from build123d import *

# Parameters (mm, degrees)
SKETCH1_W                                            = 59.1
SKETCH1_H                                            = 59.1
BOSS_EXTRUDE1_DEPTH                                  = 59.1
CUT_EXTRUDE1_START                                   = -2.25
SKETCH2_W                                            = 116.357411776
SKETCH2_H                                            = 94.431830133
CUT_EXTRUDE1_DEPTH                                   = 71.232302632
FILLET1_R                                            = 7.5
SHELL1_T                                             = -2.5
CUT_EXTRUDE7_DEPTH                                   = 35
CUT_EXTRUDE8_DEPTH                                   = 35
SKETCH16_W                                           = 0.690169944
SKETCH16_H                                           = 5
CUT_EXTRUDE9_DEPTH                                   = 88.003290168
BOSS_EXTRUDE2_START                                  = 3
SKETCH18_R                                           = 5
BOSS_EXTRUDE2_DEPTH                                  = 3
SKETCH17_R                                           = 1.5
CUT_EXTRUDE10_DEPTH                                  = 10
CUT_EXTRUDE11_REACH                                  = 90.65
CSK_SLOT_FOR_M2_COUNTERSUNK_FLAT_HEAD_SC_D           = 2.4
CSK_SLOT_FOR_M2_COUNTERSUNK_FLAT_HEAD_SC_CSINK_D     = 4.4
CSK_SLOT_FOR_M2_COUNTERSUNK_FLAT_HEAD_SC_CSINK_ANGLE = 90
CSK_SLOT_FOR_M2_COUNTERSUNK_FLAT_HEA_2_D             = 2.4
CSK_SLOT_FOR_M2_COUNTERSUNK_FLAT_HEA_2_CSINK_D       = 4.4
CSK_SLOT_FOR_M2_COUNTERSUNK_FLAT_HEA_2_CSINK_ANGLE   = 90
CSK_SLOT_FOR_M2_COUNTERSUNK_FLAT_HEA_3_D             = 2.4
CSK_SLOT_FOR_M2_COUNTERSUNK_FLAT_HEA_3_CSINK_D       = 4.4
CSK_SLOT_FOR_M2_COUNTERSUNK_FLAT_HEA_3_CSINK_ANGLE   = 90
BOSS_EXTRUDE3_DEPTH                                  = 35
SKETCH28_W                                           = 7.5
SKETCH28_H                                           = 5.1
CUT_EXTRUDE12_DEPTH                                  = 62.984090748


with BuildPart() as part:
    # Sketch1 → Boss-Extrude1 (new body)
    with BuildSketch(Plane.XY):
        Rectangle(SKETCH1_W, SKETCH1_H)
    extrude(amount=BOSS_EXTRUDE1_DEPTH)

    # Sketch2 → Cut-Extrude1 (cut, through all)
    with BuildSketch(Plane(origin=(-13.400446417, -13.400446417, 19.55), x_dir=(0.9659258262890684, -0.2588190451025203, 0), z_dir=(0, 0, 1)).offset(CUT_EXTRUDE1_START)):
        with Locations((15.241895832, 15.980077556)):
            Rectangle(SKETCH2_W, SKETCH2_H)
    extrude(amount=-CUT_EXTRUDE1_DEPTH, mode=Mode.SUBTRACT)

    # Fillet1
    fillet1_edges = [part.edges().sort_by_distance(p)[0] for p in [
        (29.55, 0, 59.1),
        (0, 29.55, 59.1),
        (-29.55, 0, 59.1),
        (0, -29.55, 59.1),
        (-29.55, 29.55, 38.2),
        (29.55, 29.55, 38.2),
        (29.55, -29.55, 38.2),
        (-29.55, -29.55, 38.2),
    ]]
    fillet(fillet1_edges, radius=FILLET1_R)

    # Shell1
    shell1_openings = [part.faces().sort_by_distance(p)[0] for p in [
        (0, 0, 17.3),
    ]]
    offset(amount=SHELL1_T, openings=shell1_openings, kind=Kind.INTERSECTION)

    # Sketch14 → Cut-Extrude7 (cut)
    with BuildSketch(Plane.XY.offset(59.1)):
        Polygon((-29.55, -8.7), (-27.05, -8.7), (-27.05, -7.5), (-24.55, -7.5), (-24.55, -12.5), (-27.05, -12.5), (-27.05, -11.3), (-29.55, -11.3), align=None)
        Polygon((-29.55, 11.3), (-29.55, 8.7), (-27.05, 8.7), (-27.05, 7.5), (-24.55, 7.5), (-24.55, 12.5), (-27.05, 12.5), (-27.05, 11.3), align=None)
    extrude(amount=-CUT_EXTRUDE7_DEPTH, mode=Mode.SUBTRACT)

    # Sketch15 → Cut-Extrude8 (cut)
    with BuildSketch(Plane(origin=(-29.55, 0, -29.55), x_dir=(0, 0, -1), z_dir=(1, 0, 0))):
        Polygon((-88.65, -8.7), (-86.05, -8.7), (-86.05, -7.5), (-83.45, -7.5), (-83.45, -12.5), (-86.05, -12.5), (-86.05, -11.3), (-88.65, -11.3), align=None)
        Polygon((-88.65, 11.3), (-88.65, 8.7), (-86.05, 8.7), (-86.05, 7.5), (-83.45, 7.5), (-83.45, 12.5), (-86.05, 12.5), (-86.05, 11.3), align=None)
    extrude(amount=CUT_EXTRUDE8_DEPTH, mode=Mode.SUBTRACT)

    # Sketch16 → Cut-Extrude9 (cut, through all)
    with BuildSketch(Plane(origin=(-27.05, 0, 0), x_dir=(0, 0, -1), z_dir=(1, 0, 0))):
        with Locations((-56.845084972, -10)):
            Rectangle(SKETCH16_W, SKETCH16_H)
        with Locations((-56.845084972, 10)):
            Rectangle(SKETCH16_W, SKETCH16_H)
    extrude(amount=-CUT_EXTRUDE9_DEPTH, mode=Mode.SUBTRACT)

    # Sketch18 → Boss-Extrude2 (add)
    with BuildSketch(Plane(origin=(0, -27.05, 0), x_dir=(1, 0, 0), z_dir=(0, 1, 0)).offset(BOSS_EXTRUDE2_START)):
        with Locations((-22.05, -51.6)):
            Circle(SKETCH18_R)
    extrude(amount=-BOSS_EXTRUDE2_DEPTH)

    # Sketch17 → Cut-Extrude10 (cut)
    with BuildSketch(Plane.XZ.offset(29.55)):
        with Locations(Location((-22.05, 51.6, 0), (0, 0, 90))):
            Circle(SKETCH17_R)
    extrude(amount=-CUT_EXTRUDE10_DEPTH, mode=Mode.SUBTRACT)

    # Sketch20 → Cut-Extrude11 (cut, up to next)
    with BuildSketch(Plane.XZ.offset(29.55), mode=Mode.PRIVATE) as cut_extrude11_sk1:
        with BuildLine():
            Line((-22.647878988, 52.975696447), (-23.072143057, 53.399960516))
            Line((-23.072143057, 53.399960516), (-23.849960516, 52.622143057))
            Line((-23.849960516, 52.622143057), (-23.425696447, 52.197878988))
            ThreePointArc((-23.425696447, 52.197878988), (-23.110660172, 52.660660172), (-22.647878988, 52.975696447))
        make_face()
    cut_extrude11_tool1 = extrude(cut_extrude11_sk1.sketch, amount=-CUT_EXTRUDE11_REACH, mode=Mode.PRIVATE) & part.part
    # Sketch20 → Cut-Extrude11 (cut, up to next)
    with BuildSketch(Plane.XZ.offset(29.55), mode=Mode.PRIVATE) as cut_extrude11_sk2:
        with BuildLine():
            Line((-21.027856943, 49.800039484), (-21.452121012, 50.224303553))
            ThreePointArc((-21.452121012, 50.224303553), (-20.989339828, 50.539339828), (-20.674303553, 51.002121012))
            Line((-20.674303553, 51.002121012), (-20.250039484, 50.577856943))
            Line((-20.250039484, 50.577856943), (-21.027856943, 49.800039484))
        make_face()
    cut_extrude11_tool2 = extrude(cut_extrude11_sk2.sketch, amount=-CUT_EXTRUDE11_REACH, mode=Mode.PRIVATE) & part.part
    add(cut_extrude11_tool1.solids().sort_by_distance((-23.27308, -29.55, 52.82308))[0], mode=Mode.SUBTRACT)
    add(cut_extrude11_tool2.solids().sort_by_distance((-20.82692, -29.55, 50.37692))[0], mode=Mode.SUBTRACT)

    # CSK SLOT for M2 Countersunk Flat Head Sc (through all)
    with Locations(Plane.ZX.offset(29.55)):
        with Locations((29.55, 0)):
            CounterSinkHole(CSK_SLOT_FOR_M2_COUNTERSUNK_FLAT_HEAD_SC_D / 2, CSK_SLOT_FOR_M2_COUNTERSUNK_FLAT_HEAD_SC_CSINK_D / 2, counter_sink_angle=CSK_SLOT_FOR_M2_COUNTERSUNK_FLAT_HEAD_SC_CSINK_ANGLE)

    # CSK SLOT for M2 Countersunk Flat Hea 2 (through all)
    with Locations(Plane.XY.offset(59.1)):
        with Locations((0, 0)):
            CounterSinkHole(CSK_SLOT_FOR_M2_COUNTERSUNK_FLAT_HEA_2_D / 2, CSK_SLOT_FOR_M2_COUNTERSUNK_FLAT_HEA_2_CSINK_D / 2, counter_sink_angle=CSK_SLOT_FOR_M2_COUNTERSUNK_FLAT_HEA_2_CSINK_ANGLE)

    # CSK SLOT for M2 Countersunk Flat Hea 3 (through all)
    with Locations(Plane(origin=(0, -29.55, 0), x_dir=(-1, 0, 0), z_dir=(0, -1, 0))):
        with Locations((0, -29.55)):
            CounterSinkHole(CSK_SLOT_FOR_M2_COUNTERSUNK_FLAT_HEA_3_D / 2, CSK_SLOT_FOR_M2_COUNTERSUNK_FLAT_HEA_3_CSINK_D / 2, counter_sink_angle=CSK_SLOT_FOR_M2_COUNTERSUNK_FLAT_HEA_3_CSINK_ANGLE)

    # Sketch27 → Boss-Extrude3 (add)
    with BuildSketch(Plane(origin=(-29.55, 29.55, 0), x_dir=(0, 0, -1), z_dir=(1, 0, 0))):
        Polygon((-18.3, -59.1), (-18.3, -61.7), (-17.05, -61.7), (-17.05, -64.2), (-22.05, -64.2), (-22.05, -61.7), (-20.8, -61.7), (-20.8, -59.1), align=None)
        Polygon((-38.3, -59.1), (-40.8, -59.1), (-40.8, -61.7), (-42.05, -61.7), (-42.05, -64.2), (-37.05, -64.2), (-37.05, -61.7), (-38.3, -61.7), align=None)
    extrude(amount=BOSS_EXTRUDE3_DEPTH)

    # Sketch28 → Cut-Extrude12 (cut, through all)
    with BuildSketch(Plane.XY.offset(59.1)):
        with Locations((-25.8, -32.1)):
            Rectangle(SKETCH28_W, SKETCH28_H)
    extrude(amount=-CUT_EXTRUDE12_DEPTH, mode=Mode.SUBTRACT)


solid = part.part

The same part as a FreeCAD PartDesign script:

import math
import FreeCAD as App
import Part
import Sketcher
from FreeCAD import Vector
Q = App.Units.Quantity


def edges_at(feature, points):
    """Names of the edges that pass closest to the given points."""
    edges = feature.Shape.Edges
    near = lambda p: min(range(len(edges)), key=lambda i: edges[i].distToShape(Part.Vertex(*p))[0])
    return sorted({f"Edge{near(p) + 1}" for p in points})


def faces_at(feature, points):
    """Names of the faces that lie closest to the given points."""
    faces = feature.Shape.Faces
    near = lambda p: min(range(len(faces)), key=lambda i: faces[i].distToShape(Part.Vertex(*p))[0])
    return sorted({f"Face{near(p) + 1}" for p in points})

doc = App.newDocument("Part")
body = doc.addObject("PartDesign::Body", "Body")

sketch1 = body.newObject("Sketcher::SketchObject", "Sketch")
sketch1.AttachmentSupport = (doc.getObject("XY_Plane"), [""])
sketch1.MapMode = "FlatFace"
sketch1.addGeometry([
    Part.LineSegment(Vector(-30, 30, 0), Vector(-30, -30, 0)),
    Part.LineSegment(Vector(-30, -30, 0), Vector(30, -30, 0)),
    Part.LineSegment(Vector(30, -30, 0), Vector(30, 30, 0)),
    Part.LineSegment(Vector(30, 30, 0), Vector(-30, 30, 0)),
], False)
sketch1.addConstraint([
    Sketcher.Constraint("Coincident", 0, 2, 1, 1),
    Sketcher.Constraint("Coincident", 1, 2, 2, 1),
    Sketcher.Constraint("Coincident", 2, 2, 3, 1),
    Sketcher.Constraint("Coincident", 3, 2, 0, 1),
    Sketcher.Constraint("Vertical", 0),
    Sketcher.Constraint("Horizontal", 1),
    Sketcher.Constraint("Vertical", 2),
    Sketcher.Constraint("Horizontal", 3),
    Sketcher.Constraint("Symmetric", 0, 2, 2, 2, -1, 1),
    Sketcher.Constraint("Equal", 3, 0),
    Sketcher.Constraint("DistanceX", 1, 1, 1, 2, 59.1),
])
pad1 = body.newObject("PartDesign::Pad", "Pad")
pad1.Profile = sketch1
pad1.Length = 59.1

sketch2 = body.newObject("Sketcher::SketchObject", "Sketch001")
sketch2.AttachmentSupport = (doc.getObject("XY_Plane"), [""])
sketch2.MapMode = "FlatFace"
sketch2.AttachmentOffset = App.Placement(Vector(0, 0, 17.3), App.Rotation())
sketch2.addGeometry([
    Part.LineSegment(Vector(-39, 59, 0), Vector(-63, -32, 0)),
    Part.LineSegment(Vector(-63, -32, 0), Vector(49, -63, 0)),
    Part.LineSegment(Vector(49, -63, 0), Vector(74, 29, 0)),
    Part.LineSegment(Vector(74, 29, 0), Vector(-39, 59, 0)),
], False)
sketch2.addConstraint([
    Sketcher.Constraint("Coincident", 0, 2, 1, 1),
    Sketcher.Constraint("Coincident", 1, 2, 2, 1),
    Sketcher.Constraint("Coincident", 2, 2, 3, 1),
    Sketcher.Constraint("Coincident", 3, 2, 0, 1),
    Sketcher.Constraint("Perpendicular", 0, 1),
    Sketcher.Constraint("Perpendicular", 1, 2),
    Sketcher.Constraint("Perpendicular", 2, 3),
    Sketcher.Constraint("Angle", 0, Q("-105 deg")),
    Sketcher.Constraint("DistanceY", 1, 2, -1, 1, 62.574599),
    Sketcher.Constraint("Distance", 0, 94.43183),
    Sketcher.Constraint("Distance", 1, 116.357412),
    Sketcher.Constraint("DistanceX", 0, 2, -1, 1, 62.95865),
])
pocket1 = body.newObject("PartDesign::Pocket", "Pocket")
pocket1.Profile = sketch2
pocket1.Type = "ThroughAll"
doc.recompute()

fillet = body.newObject("PartDesign::Fillet", "Fillet")
fillet.Base = (pocket1, edges_at(pocket1, [
    (29.55, 0, 59.1),
    (0, 29.55, 59.1),
    (-29.55, 0, 59.1),
    (0, -29.55, 59.1),
    (-29.55, 29.55, 38.2),
    (29.55, 29.55, 38.2),
    (29.55, -29.55, 38.2),
    (-29.55, -29.55, 38.2),
]))
fillet.Radius = 7.5
doc.recompute()

thickness = body.newObject("PartDesign::Thickness", "Thickness")
thickness.Base = (fillet, faces_at(fillet, [(0, 0, 17.3)]))
thickness.Value = 2.5
thickness.Reversed = True
thickness.Join = "Intersection"

sketch3 = body.newObject("Sketcher::SketchObject", "Sketch002")
sketch3.AttachmentSupport = (doc.getObject("XY_Plane"), [""])
sketch3.MapMode = "FlatFace"
sketch3.AttachmentOffset = App.Placement(Vector(0, 0, 59.1), App.Rotation())
sketch3.addGeometry([
    Part.LineSegment(Vector(-27.1, -8.7, 0), Vector(-29.6, -8.7, 0)),
    Part.LineSegment(Vector(-29.6, -8.7, 0), Vector(-29.6, -11.3, 0)),
    Part.LineSegment(Vector(-29.6, -11.3, 0), Vector(-27.1, -11.3, 0)),
    Part.LineSegment(Vector(-27.1, -11.3, 0), Vector(-27.1, -12.5, 0)),
    Part.LineSegment(Vector(-27.1, -12.5, 0), Vector(-24.6, -12.5, 0)),
    Part.LineSegment(Vector(-24.6, -12.5, 0), Vector(-24.6, -7.5, 0)),
    Part.LineSegment(Vector(-24.6, -7.5, 0), Vector(-27.1, -7.5, 0)),
    Part.LineSegment(Vector(-27.1, -7.5, 0), Vector(-27.1, -8.7, 0)),
    Part.LineSegment(Vector(-29.6, 11.3, 0), Vector(-29.6, 8.7, 0)),
    Part.LineSegment(Vector(-29.6, 8.7, 0), Vector(-27.1, 8.7, 0)),
    Part.LineSegment(Vector(-27.1, 8.7, 0), Vector(-27.1, 7.5, 0)),
    Part.LineSegment(Vector(-27.1, 7.5, 0), Vector(-24.6, 7.5, 0)),
    Part.LineSegment(Vector(-24.6, 7.5, 0), Vector(-24.6, 12.5, 0)),
    Part.LineSegment(Vector(-24.6, 12.5, 0), Vector(-27.1, 12.5, 0)),
    Part.LineSegment(Vector(-27.1, 12.5, 0), Vector(-27.1, 11.3, 0)),
    Part.LineSegment(Vector(-27.1, 11.3, 0), Vector(-29.6, 11.3, 0)),
], False)
sketch3.addConstraint([
    Sketcher.Constraint("Coincident", 0, 2, 1, 1),
    Sketcher.Constraint("Coincident", 1, 2, 2, 1),
    Sketcher.Constraint("Coincident", 2, 2, 3, 1),
    Sketcher.Constraint("Coincident", 3, 2, 4, 1),
    Sketcher.Constraint("Coincident", 4, 2, 5, 1),
    Sketcher.Constraint("Coincident", 5, 2, 6, 1),
    Sketcher.Constraint("Coincident", 6, 2, 7, 1),
    Sketcher.Constraint("Coincident", 7, 2, 0, 1),
    Sketcher.Constraint("Coincident", 8, 2, 9, 1),
    Sketcher.Constraint("Coincident", 9, 2, 10, 1),
    Sketcher.Constraint("Coincident", 10, 2, 11, 1),
    Sketcher.Constraint("Coincident", 11, 2, 12, 1),
    Sketcher.Constraint("Coincident", 12, 2, 13, 1),
    Sketcher.Constraint("Coincident", 13, 2, 14, 1),
    Sketcher.Constraint("Coincident", 14, 2, 15, 1),
    Sketcher.Constraint("Coincident", 15, 2, 8, 1),
    Sketcher.Constraint("Horizontal", 0),
    Sketcher.Constraint("Vertical", 1),
    Sketcher.Constraint("Horizontal", 2),
    Sketcher.Constraint("Vertical", 3),
    Sketcher.Constraint("Horizontal", 4),
    Sketcher.Constraint("Vertical", 5),
    Sketcher.Constraint("Horizontal", 6),
    Sketcher.Constraint("Vertical", 7),
    Sketcher.Constraint("Vertical", 8),
    Sketcher.Constraint("Horizontal", 9),
    Sketcher.Constraint("Vertical", 10),
    Sketcher.Constraint("Horizontal", 11),
    Sketcher.Constraint("Vertical", 12),
    Sketcher.Constraint("Horizontal", 13),
    Sketcher.Constraint("Vertical", 14),
    Sketcher.Constraint("Horizontal", 15),
    Sketcher.Constraint("Symmetric", 0, 2, 8, 2, -1),
    Sketcher.Constraint("Symmetric", 6, 2, 10, 2, -1),
    Sketcher.Constraint("Symmetric", 4, 2, 12, 2, -1),
    Sketcher.Constraint("Symmetric", 2, 2, 14, 2, -1),
    Sketcher.Constraint("Vertical", 3, 2, 6, 2),
    Sketcher.Constraint("Equal", 2, 4),
    Sketcher.Constraint("Equal", 3, 7),
    Sketcher.Constraint("DistanceY", 5, 1, 5, 2, 5.0),
    Sketcher.Constraint("DistanceX", 0, 2, 0, 1, 2.5),
    Sketcher.Constraint("DistanceY", 1, 2, 1, 1, 2.6),
    Sketcher.Constraint("DistanceY", 1, 2, 8, 2, 20.0),
    Sketcher.Constraint("DistanceX", 0, 2, -1, 1, 29.55),
])
pocket2 = body.newObject("PartDesign::Pocket", "Pocket001")
pocket2.Profile = sketch3
pocket2.Length = 35

sketch4 = body.newObject("Sketcher::SketchObject", "Sketch003")
sketch4.AttachmentSupport = (doc.getObject("YZ_Plane"), [""])
sketch4.MapMode = "FlatFace"
sketch4.AttachmentOffset = App.Placement(Vector(0, 0, -29.55), App.Rotation())
sketch4.addGeometry([
    Part.LineSegment(Vector(-8.7, 56.5, 0), Vector(-8.7, 59.1, 0)),
    Part.LineSegment(Vector(-8.7, 59.1, 0), Vector(-11.3, 59.1, 0)),
    Part.LineSegment(Vector(-11.3, 59.1, 0), Vector(-11.3, 56.5, 0)),
    Part.LineSegment(Vector(-11.3, 56.5, 0), Vector(-12.5, 56.5, 0)),
    Part.LineSegment(Vector(-12.5, 56.5, 0), Vector(-12.5, 53.9, 0)),
    Part.LineSegment(Vector(-12.5, 53.9, 0), Vector(-7.5, 53.9, 0)),
    Part.LineSegment(Vector(-7.5, 53.9, 0), Vector(-7.5, 56.5, 0)),
    Part.LineSegment(Vector(-7.5, 56.5, 0), Vector(-8.7, 56.5, 0)),
    Part.LineSegment(Vector(11.3, 59.1, 0), Vector(8.7, 59.1, 0)),
    Part.LineSegment(Vector(8.7, 59.1, 0), Vector(8.7, 56.5, 0)),
    Part.LineSegment(Vector(8.7, 56.5, 0), Vector(7.5, 56.5, 0)),
    Part.LineSegment(Vector(7.5, 56.5, 0), Vector(7.5, 53.9, 0)),
    Part.LineSegment(Vector(7.5, 53.9, 0), Vector(12.5, 53.9, 0)),
    Part.LineSegment(Vector(12.5, 53.9, 0), Vector(12.5, 56.5, 0)),
    Part.LineSegment(Vector(12.5, 56.5, 0), Vector(11.3, 56.5, 0)),
    Part.LineSegment(Vector(11.3, 56.5, 0), Vector(11.3, 59.1, 0)),
], False)
sketch4.addConstraint([
    Sketcher.Constraint("Coincident", 0, 2, 1, 1),
    Sketcher.Constraint("Coincident", 1, 2, 2, 1),
    Sketcher.Constraint("Coincident", 2, 2, 3, 1),
    Sketcher.Constraint("Coincident", 3, 2, 4, 1),
    Sketcher.Constraint("Coincident", 4, 2, 5, 1),
    Sketcher.Constraint("Coincident", 5, 2, 6, 1),
    Sketcher.Constraint("Coincident", 6, 2, 7, 1),
    Sketcher.Constraint("Coincident", 7, 2, 0, 1),
    Sketcher.Constraint("Coincident", 8, 2, 9, 1),
    Sketcher.Constraint("Coincident", 9, 2, 10, 1),
    Sketcher.Constraint("Coincident", 10, 2, 11, 1),
    Sketcher.Constraint("Coincident", 11, 2, 12, 1),
    Sketcher.Constraint("Coincident", 12, 2, 13, 1),
    Sketcher.Constraint("Coincident", 13, 2, 14, 1),
    Sketcher.Constraint("Coincident", 14, 2, 15, 1),
    Sketcher.Constraint("Coincident", 15, 2, 8, 1),
    Sketcher.Constraint("Vertical", 0),
    Sketcher.Constraint("Horizontal", 1),
    Sketcher.Constraint("Vertical", 2),
    Sketcher.Constraint("Horizontal", 3),
    Sketcher.Constraint("Vertical", 4),
    Sketcher.Constraint("Horizontal", 5),
    Sketcher.Constraint("Vertical", 6),
    Sketcher.Constraint("Horizontal", 7),
    Sketcher.Constraint("Horizontal", 8),
    Sketcher.Constraint("Vertical", 9),
    Sketcher.Constraint("Horizontal", 10),
    Sketcher.Constraint("Vertical", 11),
    Sketcher.Constraint("Horizontal", 12),
    Sketcher.Constraint("Vertical", 13),
    Sketcher.Constraint("Horizontal", 14),
    Sketcher.Constraint("Vertical", 15),
    Sketcher.Constraint("Symmetric", 0, 2, 8, 2, -2),
    Sketcher.Constraint("Symmetric", 6, 2, 10, 2, -2),
    Sketcher.Constraint("Symmetric", 4, 2, 12, 2, -2),
    Sketcher.Constraint("Symmetric", 2, 2, 14, 2, -2),
    Sketcher.Constraint("Horizontal", 3, 2, 6, 2),
    Sketcher.Constraint("Equal", 3, 7),
    Sketcher.Constraint("Equal", 8, 0),
    Sketcher.Constraint("Equal", 2, 4),
    Sketcher.Constraint("DistanceX", 5, 1, 5, 2, 5.0),
    Sketcher.Constraint("DistanceX", 1, 2, 1, 1, 2.6),
    Sketcher.Constraint("DistanceX", 1, 2, 8, 2, 20.0),
    Sketcher.Constraint("DistanceY", -1, 1, 0, 2, 59.1),
])
pocket3 = body.newObject("PartDesign::Pocket", "Pocket002")
pocket3.Profile = sketch4
pocket3.Length = 35
pocket3.Reversed = True

sketch5 = body.newObject("Sketcher::SketchObject", "Sketch004")
sketch5.AttachmentSupport = (doc.getObject("YZ_Plane"), [""])
sketch5.MapMode = "FlatFace"
sketch5.AttachmentOffset = App.Placement(Vector(0, 0, -27.05), App.Rotation())
sketch5.addGeometry([
    Part.LineSegment(Vector(-7.5, 57.2, 0), Vector(-12.5, 57.2, 0)),
    Part.LineSegment(Vector(-12.5, 57.2, 0), Vector(-12.5, 56.5, 0)),
    Part.LineSegment(Vector(-12.5, 56.5, 0), Vector(-7.5, 56.5, 0)),
    Part.LineSegment(Vector(-7.5, 56.5, 0), Vector(-7.5, 57.2, 0)),
    Part.LineSegment(Vector(12.5, 57.2, 0), Vector(7.5, 57.2, 0)),
    Part.LineSegment(Vector(7.5, 57.2, 0), Vector(7.5, 56.5, 0)),
    Part.LineSegment(Vector(7.5, 56.5, 0), Vector(12.5, 56.5, 0)),
    Part.LineSegment(Vector(12.5, 56.5, 0), Vector(12.5, 57.2, 0)),
], False)
sketch5.addConstraint([
    Sketcher.Constraint("Coincident", 0, 2, 1, 1),
    Sketcher.Constraint("Coincident", 1, 2, 2, 1),
    Sketcher.Constraint("Coincident", 2, 2, 3, 1),
    Sketcher.Constraint("Coincident", 3, 2, 0, 1),
    Sketcher.Constraint("Coincident", 4, 2, 5, 1),
    Sketcher.Constraint("Coincident", 5, 2, 6, 1),
    Sketcher.Constraint("Coincident", 6, 2, 7, 1),
    Sketcher.Constraint("Coincident", 7, 2, 4, 1),
    Sketcher.Constraint("Horizontal", 0),
    Sketcher.Constraint("Vertical", 1),
    Sketcher.Constraint("Horizontal", 2),
    Sketcher.Constraint("Vertical", 3),
    Sketcher.Constraint("Horizontal", 4),
    Sketcher.Constraint("Vertical", 5),
    Sketcher.Constraint("Horizontal", 6),
    Sketcher.Constraint("Vertical", 7),
    Sketcher.Constraint("Symmetric", 3, 2, 4, 2, -2),
    Sketcher.Constraint("Symmetric", 1, 2, 6, 2, -2),
    Sketcher.Constraint("DistanceX", 0, 2, 0, 1, 5.0),
    Sketcher.Constraint("DistanceX", 3, 2, 4, 2, 15.0),
    Sketcher.Constraint("DistanceY", -1, 1, 1, 2, 56.5),
    Sketcher.Constraint("DistanceY", 1, 2, 1, 1, 0.69017),
])
pocket4 = body.newObject("PartDesign::Pocket", "Pocket003")
pocket4.Profile = sketch5
pocket4.Type = "ThroughAll"

sketch6 = body.newObject("Sketcher::SketchObject", "Sketch005")
sketch6.AttachmentSupport = (doc.getObject("XZ_Plane"), [""])
sketch6.MapMode = "FlatFace"
sketch6.AttachmentOffset = App.Placement(Vector(0, 0, 24.05), App.Rotation())
sketch6.addGeometry(Part.Circle(Vector(-22, 52, 0), Vector(0, 0, 1), 5), False)
sketch6.addConstraint([
    Sketcher.Constraint("Diameter", 0, 10.0),
    Sketcher.Constraint("DistanceY", -1, 1, 0, 3, 51.6),
    Sketcher.Constraint("DistanceX", 0, 3, -1, 1, 22.05),
])
pad2 = body.newObject("PartDesign::Pad", "Pad001")
pad2.Profile = sketch6
pad2.Length = 3

sketch7 = body.newObject("Sketcher::SketchObject", "Sketch006")
sketch7.AttachmentSupport = (doc.getObject("XZ_Plane"), [""])
sketch7.MapMode = "FlatFace"
sketch7.AttachmentOffset = App.Placement(Vector(0, 0, 29.55), App.Rotation())
sketch7.addGeometry(Part.Circle(Vector(-22.1, 51.6, 0), Vector(0, 0, 1), 1.5), False)
sketch7.addConstraint([
    Sketcher.Constraint("Diameter", 0, 3.0),
    Sketcher.Constraint("DistanceY", -1, 1, 0, 3, 51.6),
    Sketcher.Constraint("DistanceX", 0, 3, -1, 1, 22.05),
])
pocket5 = body.newObject("PartDesign::Pocket", "Pocket004")
pocket5.Profile = sketch7
pocket5.Length = 10

sketch8 = body.newObject("Sketcher::SketchObject", "Sketch007")
sketch8.AttachmentSupport = (doc.getObject("XZ_Plane"), [""])
sketch8.MapMode = "FlatFace"
sketch8.AttachmentOffset = App.Placement(Vector(0, 0, 29.55), App.Rotation())
sketch8.addGeometry([
    Part.LineSegment(Vector(-22.6, 53, 0), Vector(-23.1, 53.4, 0)),
    Part.LineSegment(Vector(-23.1, 53.4, 0), Vector(-23.8, 52.6, 0)),
    Part.LineSegment(Vector(-23.8, 52.6, 0), Vector(-23.4, 52.2, 0)),
    Part.ArcOfCircle(Part.Circle(Vector(-22.1, 51.6, 0), Vector(0, 0, 1), 1.5), math.radians(113), math.radians(157)),
], False)
sketch8.addConstraint([
    Sketcher.Constraint("Coincident", 0, 2, 1, 1),
    Sketcher.Constraint("Coincident", 1, 2, 2, 1),
    Sketcher.Constraint("Coincident", 2, 2, 3, 2),
    Sketcher.Constraint("Coincident", 3, 1, 0, 1),
    Sketcher.Constraint("Perpendicular", 0, 1),
    Sketcher.Constraint("Perpendicular", 1, 2),
    Sketcher.Constraint("Equal", 0, 2),
    Sketcher.Constraint("Radius", 3, 1.5),
    Sketcher.Constraint("Angle", 0, Q("135 deg")),
    Sketcher.Constraint("Distance", 0, 0.6),
    Sketcher.Constraint("Distance", 1, 1.1),
    Sketcher.Constraint("DistanceY", -1, 1, 3, 3, 51.6),
    Sketcher.Constraint("DistanceX", 3, 3, -1, 1, 22.05),
])
pocket6 = body.newObject("PartDesign::Pocket", "Pocket005")
pocket6.Profile = sketch8
pocket6.Length = 5.5

sketch9 = body.newObject("Sketcher::SketchObject", "Sketch008")
sketch9.AttachmentSupport = (doc.getObject("XZ_Plane"), [""])
sketch9.MapMode = "FlatFace"
sketch9.AttachmentOffset = App.Placement(Vector(0, 0, 29.55), App.Rotation())
sketch9.addGeometry([
    Part.LineSegment(Vector(-21.5, 50.2, 0), Vector(-21, 49.8, 0)),
    Part.LineSegment(Vector(-21, 49.8, 0), Vector(-20.3, 50.6, 0)),
    Part.LineSegment(Vector(-20.3, 50.6, 0), Vector(-20.7, 51, 0)),
    Part.ArcOfCircle(Part.Circle(Vector(-22, 51.6, 0), Vector(0, 0, 1), 1.5), math.radians(-67), math.radians(-23)),
], False)
sketch9.addConstraint([
    Sketcher.Constraint("Coincident", 0, 2, 1, 1),
    Sketcher.Constraint("Coincident", 1, 2, 2, 1),
    Sketcher.Constraint("Coincident", 2, 2, 3, 2),
    Sketcher.Constraint("Coincident", 3, 1, 0, 1),
    Sketcher.Constraint("Perpendicular", 0, 1),
    Sketcher.Constraint("Perpendicular", 1, 2),
    Sketcher.Constraint("Equal", 0, 2),
    Sketcher.Constraint("Radius", 3, 1.5),
    Sketcher.Constraint("Angle", 0, Q("-45 deg")),
    Sketcher.Constraint("Distance", 0, 0.6),
    Sketcher.Constraint("Distance", 1, 1.1),
    Sketcher.Constraint("DistanceY", -1, 1, 3, 3, 51.6),
    Sketcher.Constraint("DistanceX", 3, 3, -1, 1, 22.05),
])
pocket7 = body.newObject("PartDesign::Pocket", "Pocket006")
pocket7.Profile = sketch9
pocket7.Type = "UpToFirst"

sketch10 = body.newObject("Sketcher::SketchObject", "Sketch009")
sketch10.AttachmentSupport = (doc.getObject("XZ_Plane"), [""])
sketch10.MapMode = "FlatFace"
sketch10.AttachmentOffset = App.Placement(Vector(0, 0, -29.55), App.Rotation())
sketch10.addGeometry(Part.Circle(Vector(0, 29.6, 0), Vector(0, 0, 1), 1.2), False)
sketch10.addConstraint([
    Sketcher.Constraint("PointOnObject", 0, 3, -2),
    Sketcher.Constraint("Diameter", 0, 2.4),
    Sketcher.Constraint("DistanceY", -1, 1, 0, 3, 29.55),
])
doc.recompute()
hole = body.newObject("PartDesign::Hole", "Hole")
hole.Profile = sketch10
hole.ThreadType = "None"
hole.Diameter = 2.4
hole.DepthType = "ThroughAll"
hole.HoleCutType = "Countersink"
hole.HoleCutDiameter = 4.4
hole.HoleCutCountersinkAngle = 90
hole.Reversed = True

sketch11 = body.newObject("Sketcher::SketchObject", "Sketch010")
sketch11.AttachmentSupport = (doc.getObject("XY_Plane"), [""])
sketch11.MapMode = "FlatFace"
sketch11.AttachmentOffset = App.Placement(Vector(0, 0, 59.1), App.Rotation())
sketch11.addGeometry(Part.Circle(Vector(0, 0, 0), Vector(0, 0, 1), 1.2), False)
sketch11.addConstraint([
    Sketcher.Constraint("Coincident", 0, 3, -1, 1),
    Sketcher.Constraint("Diameter", 0, 2.4),
])
doc.recompute()
hole2 = body.newObject("PartDesign::Hole", "Hole001")
hole2.Profile = sketch11
hole2.ThreadType = "None"
hole2.Diameter = 2.4
hole2.DepthType = "ThroughAll"
hole2.HoleCutType = "Countersink"
hole2.HoleCutDiameter = 4.4
hole2.HoleCutCountersinkAngle = 90

sketch12 = body.newObject("Sketcher::SketchObject", "Sketch011")
sketch12.AttachmentSupport = (doc.getObject("XZ_Plane"), [""])
sketch12.MapMode = "FlatFace"
sketch12.AttachmentOffset = App.Placement(Vector(0, 0, 29.55), App.Rotation())
sketch12.addGeometry(Part.Circle(Vector(0, 29.6, 0), Vector(0, 0, 1), 1.2), False)
sketch12.addConstraint([
    Sketcher.Constraint("PointOnObject", 0, 3, -2),
    Sketcher.Constraint("Diameter", 0, 2.4),
    Sketcher.Constraint("DistanceY", -1, 1, 0, 3, 29.55),
])
doc.recompute()
hole3 = body.newObject("PartDesign::Hole", "Hole002")
hole3.Profile = sketch12
hole3.ThreadType = "None"
hole3.Diameter = 2.4
hole3.DepthType = "ThroughAll"
hole3.HoleCutType = "Countersink"
hole3.HoleCutDiameter = 4.4
hole3.HoleCutCountersinkAngle = 90

sketch13 = body.newObject("Sketcher::SketchObject", "Sketch012")
sketch13.AttachmentSupport = (doc.getObject("YZ_Plane"), [""])
sketch13.MapMode = "FlatFace"
sketch13.AttachmentOffset = App.Placement(Vector(0, 0, -29.55), App.Rotation())
sketch13.addGeometry([
    Part.LineSegment(Vector(-32.1, 18.3, 0), Vector(-29.6, 18.3, 0)),
    Part.LineSegment(Vector(-29.6, 18.3, 0), Vector(-29.6, 20.8, 0)),
    Part.LineSegment(Vector(-29.6, 20.8, 0), Vector(-32.1, 20.8, 0)),
    Part.LineSegment(Vector(-32.1, 20.8, 0), Vector(-32.1, 22.1, 0)),
    Part.LineSegment(Vector(-32.1, 22.1, 0), Vector(-34.6, 22.1, 0)),
    Part.LineSegment(Vector(-34.6, 22.1, 0), Vector(-34.6, 17.1, 0)),
    Part.LineSegment(Vector(-34.6, 17.1, 0), Vector(-32.1, 17.1, 0)),
    Part.LineSegment(Vector(-32.1, 17.1, 0), Vector(-32.1, 18.3, 0)),
    Part.LineSegment(Vector(-29.6, 38.3, 0), Vector(-29.6, 40.8, 0)),
    Part.LineSegment(Vector(-29.6, 40.8, 0), Vector(-32.1, 40.8, 0)),
    Part.LineSegment(Vector(-32.1, 40.8, 0), Vector(-32.1, 42, 0)),
    Part.LineSegment(Vector(-32.1, 42, 0), Vector(-34.6, 42, 0)),
    Part.LineSegment(Vector(-34.6, 42, 0), Vector(-34.6, 37, 0)),
    Part.LineSegment(Vector(-34.6, 37, 0), Vector(-32.1, 37, 0)),
    Part.LineSegment(Vector(-32.1, 37, 0), Vector(-32.1, 38.3, 0)),
    Part.LineSegment(Vector(-32.1, 38.3, 0), Vector(-29.6, 38.3, 0)),
], False)
sketch13.addConstraint([
    Sketcher.Constraint("Coincident", 0, 2, 1, 1),
    Sketcher.Constraint("Coincident", 1, 2, 2, 1),
    Sketcher.Constraint("Coincident", 2, 2, 3, 1),
    Sketcher.Constraint("Coincident", 3, 2, 4, 1),
    Sketcher.Constraint("Coincident", 4, 2, 5, 1),
    Sketcher.Constraint("Coincident", 5, 2, 6, 1),
    Sketcher.Constraint("Coincident", 6, 2, 7, 1),
    Sketcher.Constraint("Coincident", 7, 2, 0, 1),
    Sketcher.Constraint("Coincident", 8, 2, 9, 1),
    Sketcher.Constraint("Coincident", 9, 2, 10, 1),
    Sketcher.Constraint("Coincident", 10, 2, 11, 1),
    Sketcher.Constraint("Coincident", 11, 2, 12, 1),
    Sketcher.Constraint("Coincident", 12, 2, 13, 1),
    Sketcher.Constraint("Coincident", 13, 2, 14, 1),
    Sketcher.Constraint("Coincident", 14, 2, 15, 1),
    Sketcher.Constraint("Coincident", 15, 2, 8, 1),
    Sketcher.Constraint("Horizontal", 0),
    Sketcher.Constraint("Vertical", 1),
    Sketcher.Constraint("Horizontal", 2),
    Sketcher.Constraint("Vertical", 3),
    Sketcher.Constraint("Horizontal", 4),
    Sketcher.Constraint("Vertical", 5),
    Sketcher.Constraint("Horizontal", 6),
    Sketcher.Constraint("Vertical", 7),
    Sketcher.Constraint("Vertical", 8),
    Sketcher.Constraint("Horizontal", 9),
    Sketcher.Constraint("Vertical", 10),
    Sketcher.Constraint("Horizontal", 11),
    Sketcher.Constraint("Vertical", 12),
    Sketcher.Constraint("Horizontal", 13),
    Sketcher.Constraint("Vertical", 14),
    Sketcher.Constraint("Horizontal", 15),
    Sketcher.Constraint("Vertical", 3, 2, 6, 2),
    Sketcher.Constraint("Vertical", 1, 2, 8, 2),
    Sketcher.Constraint("Vertical", 7, 2, 9, 2),
    Sketcher.Constraint("Vertical", 5, 2, 11, 2),
    Sketcher.Constraint("Vertical", 10, 2, 13, 2),
    Sketcher.Constraint("Equal", 13, 1),
    Sketcher.Constraint("Equal", 3, 7),
    Sketcher.Constraint("Equal", 1, 8),
    Sketcher.Constraint("Equal", 7, 10),
    Sketcher.Constraint("Equal", 5, 12),
    Sketcher.Constraint("DistanceY", 5, 2, 5, 1, 5.0),
    Sketcher.Constraint("DistanceX", 0, 1, 0, 2, 2.6),
    Sketcher.Constraint("DistanceX", 4, 2, 4, 1, 2.5),
    Sketcher.Constraint("DistanceY", 1, 2, 8, 2, 20.0),
    Sketcher.Constraint("DistanceY", -1, 1, 0, 2, 18.3),
    Sketcher.Constraint("DistanceX", 0, 2, -1, 1, 29.55),
])
pad3 = body.newObject("PartDesign::Pad", "Pad002")
pad3.Profile = sketch13
pad3.Length = 35

sketch14 = body.newObject("Sketcher::SketchObject", "Sketch013")
sketch14.AttachmentSupport = (doc.getObject("XY_Plane"), [""])
sketch14.MapMode = "FlatFace"
sketch14.AttachmentOffset = App.Placement(Vector(0, 0, 59.1), App.Rotation())
sketch14.addGeometry([
    Part.LineSegment(Vector(-30, -30, 0), Vector(-30, -35, 0)),
    Part.LineSegment(Vector(-30, -35, 0), Vector(-22, -35, 0)),
    Part.LineSegment(Vector(-22, -35, 0), Vector(-22, -30, 0)),
    Part.LineSegment(Vector(-22, -30, 0), Vector(-30, -30, 0)),
], False)
sketch14.addConstraint([
    Sketcher.Constraint("Coincident", 0, 2, 1, 1),
    Sketcher.Constraint("Coincident", 1, 2, 2, 1),
    Sketcher.Constraint("Coincident", 2, 2, 3, 1),
    Sketcher.Constraint("Coincident", 3, 2, 0, 1),
    Sketcher.Constraint("Vertical", 0),
    Sketcher.Constraint("Horizontal", 1),
    Sketcher.Constraint("Vertical", 2),
    Sketcher.Constraint("Horizontal", 3),
    Sketcher.Constraint("DistanceX", 1, 1, 1, 2, 7.5),
    Sketcher.Constraint("DistanceY", 0, 2, 0, 1, 5.1),
    Sketcher.Constraint("DistanceX", 0, 2, -1, 1, 29.55),
    Sketcher.Constraint("DistanceY", 0, 2, -1, 1, 34.65),
])
pocket8 = body.newObject("PartDesign::Pocket", "Pocket007")
pocket8.Profile = sketch14
pocket8.Type = "ThroughAll"

doc.recompute()
